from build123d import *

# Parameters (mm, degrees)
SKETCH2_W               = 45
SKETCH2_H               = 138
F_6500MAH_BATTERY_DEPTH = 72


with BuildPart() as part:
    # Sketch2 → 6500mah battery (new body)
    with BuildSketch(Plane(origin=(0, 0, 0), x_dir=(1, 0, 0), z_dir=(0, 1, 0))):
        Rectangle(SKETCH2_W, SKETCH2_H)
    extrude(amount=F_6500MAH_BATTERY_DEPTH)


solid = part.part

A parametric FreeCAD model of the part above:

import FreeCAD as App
import Part
import Sketcher
from FreeCAD import Vector
Q = App.Units.Quantity

doc = App.newDocument("Part")
params = doc.addObject("Spreadsheet::Sheet", "Params")
for row, (alias, value) in enumerate([
    ("sketch1_width", "45 mm"),
    ("sketch1_height", "138 mm"),
    ("pad1_length", "72 mm"),
], start=1):
    params.set(f"A{row}", alias)
    params.set(f"B{row}", "=" + value)
    params.setAlias(f"B{row}", alias)

body = doc.addObject("PartDesign::Body", "Body")

# Sketch on XZ plane
sketch1 = doc.addObject("Sketcher::SketchObject", "Sketch")
body.addObject(sketch1)
sketch1.AttachmentSupport = (doc.XZ_Plane, [""])
sketch1.MapMode = "FlatFace"
sketch1.addGeometry([
    Part.LineSegment(Vector(-22.5, -69, 0), Vector(-22.5, 69, 0)),
    Part.LineSegment(Vector(-22.5, 69, 0), Vector(22.5, 69, 0)),
    Part.LineSegment(Vector(22.5, 69, 0), Vector(22.5, -69, 0)),
    Part.LineSegment(Vector(22.5, -69, 0), Vector(-22.5, -69, 0)),
], False)
sketch1.addConstraint([
    Sketcher.Constraint("Coincident", 0, 2, 1, 1),
    Sketcher.Constraint("Coincident", 1, 2, 2, 1),
    Sketcher.Constraint("Coincident", 2, 2, 3, 1),
    Sketcher.Constraint("Coincident", 3, 2, 0, 1),
    Sketcher.Constraint("Vertical", 0),
    Sketcher.Constraint("Horizontal", 1),
    Sketcher.Constraint("Vertical", 2),
    Sketcher.Constraint("Horizontal", 3),
    Sketcher.Constraint("Symmetric", 0, 2, 2, 2, -1, 1),
    Sketcher.Constraint("DistanceX", 1, 1, 1, 2, Q("45 mm")),
    Sketcher.Constraint("DistanceY", 0, 1, 0, 2, Q("138 mm")),
])
sketch1.setExpression("Constraints[9]", "Params.sketch1_width")
sketch1.setExpression("Constraints[10]", "Params.sketch1_height")
pad1 = doc.addObject("PartDesign::Pad", "Pad")
body.addObject(pad1)
pad1.Profile = sketch1
pad1.setExpression("Length", "Params.pad1_length")
pad1.Reversed = True

doc.recompute()
